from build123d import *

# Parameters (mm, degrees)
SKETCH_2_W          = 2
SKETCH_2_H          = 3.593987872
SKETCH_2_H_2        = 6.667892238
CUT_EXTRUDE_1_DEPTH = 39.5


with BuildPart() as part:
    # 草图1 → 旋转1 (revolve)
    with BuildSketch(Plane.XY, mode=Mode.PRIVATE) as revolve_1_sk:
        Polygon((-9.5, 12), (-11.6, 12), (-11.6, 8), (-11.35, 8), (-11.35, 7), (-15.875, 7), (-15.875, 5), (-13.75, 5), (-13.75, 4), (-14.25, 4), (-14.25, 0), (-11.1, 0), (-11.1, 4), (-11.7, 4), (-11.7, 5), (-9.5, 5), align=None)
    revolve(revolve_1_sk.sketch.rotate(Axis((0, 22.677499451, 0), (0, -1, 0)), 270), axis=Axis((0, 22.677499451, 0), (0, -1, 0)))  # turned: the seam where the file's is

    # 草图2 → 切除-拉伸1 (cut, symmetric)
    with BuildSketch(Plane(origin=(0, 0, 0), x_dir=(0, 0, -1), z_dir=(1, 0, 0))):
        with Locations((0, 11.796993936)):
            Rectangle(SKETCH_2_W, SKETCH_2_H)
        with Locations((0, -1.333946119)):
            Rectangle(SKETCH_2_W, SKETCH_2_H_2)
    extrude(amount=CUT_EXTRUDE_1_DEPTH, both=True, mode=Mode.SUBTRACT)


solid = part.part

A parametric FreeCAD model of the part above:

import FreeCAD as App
import Part
import Sketcher
from FreeCAD import Vector
Q = App.Units.Quantity

doc = App.newDocument("Part")
params = doc.addObject("Spreadsheet::Sheet", "Params")
for row, (alias, value) in enumerate([
    ("sketch1_height", "4 mm"),
    ("sketch1_height2", "1 mm"),
    ("sketch1_height3", "2 mm"),
    ("sketch1_width", "2.1 mm"),
    ("sketch1_width2", "0.5 mm"),
    ("revolution_angle", "360 deg"),
    ("sketch2_height", "2 mm"),
    ("pocket1_length", "79 mm"),
], start=1):
    params.set(f"A{row}", alias)
    params.set(f"B{row}", "=" + value)
    params.setAlias(f"B{row}", alias)

body = doc.addObject("PartDesign::Body", "Body")

sketch1 = doc.addObject("Sketcher::SketchObject", "Sketch")
body.addObject(sketch1)
sketch1.AttachmentSupport = (doc.XY_Plane, [""])
sketch1.MapMode = "FlatFace"
sketch1.addGeometry(Part.LineSegment(Vector(-9.5, 12, 0), Vector(-11.6, 12, 0)), False)
sketch1.addGeometry(Part.LineSegment(Vector(-11.6, 12, 0), Vector(-11.6, 8, 0)), False)
sketch1.addGeometry(Part.LineSegment(Vector(-11.6, 8, 0), Vector(-11.35, 8, 0)), False)
sketch1.addGeometry(Part.LineSegment(Vector(-11.35, 8, 0), Vector(-11.35, 7, 0)), False)
sketch1.addGeometry(Part.LineSegment(Vector(-11.35, 7, 0), Vector(-15.88, 7, 0)), False)
sketch1.addGeometry(Part.LineSegment(Vector(-15.88, 7, 0), Vector(-15.88, 5, 0)), False)
sketch1.addGeometry(Part.LineSegment(Vector(-15.88, 5, 0), Vector(-13.75, 5, 0)), False)
sketch1.addGeometry(Part.LineSegment(Vector(-13.75, 5, 0), Vector(-13.75, 4, 0)), False)
sketch1.addGeometry(Part.LineSegment(Vector(-13.75, 4, 0), Vector(-14.25, 4, 0)), False)
sketch1.addGeometry(Part.LineSegment(Vector(-14.25, 4, 0), Vector(-14.25, 0, 0)), False)
sketch1.addGeometry(Part.LineSegment(Vector(-14.25, 0, 0), Vector(-11.1, 0, 0)), False)
sketch1.addGeometry(Part.LineSegment(Vector(-11.1, 0, 0), Vector(-11.1, 4, 0)), False)
sketch1.addGeometry(Part.LineSegment(Vector(-11.1, 4, 0), Vector(-11.7, 4, 0)), False)
sketch1.addGeometry(Part.LineSegment(Vector(-11.7, 4, 0), Vector(-11.7, 5, 0)), False)
sketch1.addGeometry(Part.LineSegment(Vector(-11.7, 5, 0), Vector(-9.5, 5, 0)), False)
sketch1.addGeometry(Part.LineSegment(Vector(-9.5, 5, 0), Vector(-9.5, 12, 0)), False)
sketch1.addConstraint(Sketcher.Constraint("Coincident", 0, 2, 1, 1))
sketch1.addConstraint(Sketcher.Constraint("Coincident", 1, 2, 2, 1))
sketch1.addConstraint(Sketcher.Constraint("Coincident", 2, 2, 3, 1))
sketch1.addConstraint(Sketcher.Constraint("Coincident", 3, 2, 4, 1))
sketch1.addConstraint(Sketcher.Constraint("Coincident", 4, 2, 5, 1))
sketch1.addConstraint(Sketcher.Constraint("Coincident", 5, 2, 6, 1))
sketch1.addConstraint(Sketcher.Constraint("Coincident", 6, 2, 7, 1))
sketch1.addConstraint(Sketcher.Constraint("Coincident", 7, 2, 8, 1))
sketch1.addConstraint(Sketcher.Constraint("Coincident", 8, 2, 9, 1))
sketch1.addConstraint(Sketcher.Constraint("Coincident", 9, 2, 10, 1))
sketch1.addConstraint(Sketcher.Constraint("Coincident", 10, 2, 11, 1))
sketch1.addConstraint(Sketcher.Constraint("Coincident", 11, 2, 12, 1))
sketch1.addConstraint(Sketcher.Constraint("Coincident", 12, 2, 13, 1))
sketch1.addConstraint(Sketcher.Constraint("Coincident", 13, 2, 14, 1))
sketch1.addConstraint(Sketcher.Constraint("Coincident", 14, 2, 15, 1))
sketch1.addConstraint(Sketcher.Constraint("Coincident", 15, 2, 0, 1))
sketch1.addConstraint(Sketcher.Constraint("Horizontal", 0))
sketch1.addConstraint(Sketcher.Constraint("Vertical", 1))
sketch1.addConstraint(Sketcher.Constraint("Horizontal", 2))
sketch1.addConstraint(Sketcher.Constraint("Vertical", 3))
sketch1.addConstraint(Sketcher.Constraint("Horizontal", 4))
sketch1.addConstraint(Sketcher.Constraint("Vertical", 5))
sketch1.addConstraint(Sketcher.Constraint("Horizontal", 6))
sketch1.addConstraint(Sketcher.Constraint("Vertical", 7))
sketch1.addConstraint(Sketcher.Constraint("Horizontal", 8))
sketch1.addConstraint(Sketcher.Constraint("Vertical", 9))
sketch1.addConstraint(Sketcher.Constraint("Horizontal", 10))
sketch1.addConstraint(Sketcher.Constraint("Vertical", 11))
sketch1.addConstraint(Sketcher.Constraint("Horizontal", 12))
sketch1.addConstraint(Sketcher.Constraint("Vertical", 13))
sketch1.addConstraint(Sketcher.Constraint("Horizontal", 14))
sketch1.addConstraint(Sketcher.Constraint("Vertical", 15))
sketch1.addConstraint(Sketcher.Constraint("PointOnObject", 9, 2, -1))
sketch1.addConstraint(Sketcher.Constraint("Horizontal", 8, 2, 11, 2))
sketch1.addConstraint(Sketcher.Constraint("Horizontal", 6, 2, 13, 2))
sketch1.addConstraint(Sketcher.Constraint("Equal", 3, 7))
sketch1.addConstraint(Sketcher.Constraint("Equal", 1, 9))
sketch1.addConstraint(Sketcher.Constraint("DistanceY", 1, 2, 1, 1, Q("4 mm")))
sketch1.addConstraint(Sketcher.Constraint("DistanceY", 3, 2, 3, 1, Q("1 mm")))
sketch1.addConstraint(Sketcher.Constraint("DistanceY", 5, 2, 5, 1, Q("2 mm")))
sketch1.addConstraint(Sketcher.Constraint("DistanceX", 0, 2, 0, 1, Q("2.1 mm")))
sketch1.addConstraint(Sketcher.Constraint("DistanceX", 8, 2, 8, 1, Q("0.5 mm")))
sketch1.addConstraint(Sketcher.Constraint("DistanceX", 12, 2, 12, 1, Q("0.6 mm")))
sketch1.addConstraint(Sketcher.Constraint("DistanceX", 14, 1, 14, 2, Q("2.2 mm")))
sketch1.addConstraint(Sketcher.Constraint("DistanceX", 2, 1, 2, 2, Q("0.25 mm")))
sketch1.addConstraint(Sketcher.Constraint("DistanceX", 10, 1, 10, 2, Q("3.15 mm")))
sketch1.addConstraint(Sketcher.Constraint("DistanceX", 0, 2, -1, 1, Q("11.6 mm")))
sketch1.addConstraint(Sketcher.Constraint("DistanceX", 4, 2, 4, 1, Q("4.525 mm")))
sketch1.setExpression("Constraints[37]", "Params.sketch1_height")
sketch1.setExpression("Constraints[38]", "Params.sketch1_height2")
sketch1.setExpression("Constraints[39]", "Params.sketch1_height3")
sketch1.setExpression("Constraints[40]", "Params.sketch1_width")
sketch1.setExpression("Constraints[41]", "Params.sketch1_width2")
revolution = doc.addObject("PartDesign::Revolution", "Revolution")
body.addObject(revolution)
revolution.Profile = sketch1
revolution.ReferenceAxis = (sketch1, ["V_Axis"])
revolution.setExpression("Angle", "Params.revolution_angle")

sketch2 = doc.addObject("Sketcher::SketchObject", "Sketch001")
body.addObject(sketch2)
sketch2.AttachmentSupport = (doc.YZ_Plane, [""])
sketch2.MapMode = "FlatFace"
sketch2.addGeometry(Part.LineSegment(Vector(13.6, 1, 0), Vector(10, 1, 0)), False)
sketch2.addGeometry(Part.LineSegment(Vector(10, 1, 0), Vector(10, -1, 0)), False)
sketch2.addGeometry(Part.LineSegment(Vector(10, -1, 0), Vector(13.6, -1, 0)), False)
sketch2.addGeometry(Part.LineSegment(Vector(13.6, -1, 0), Vector(13.6, 1, 0)), False)
sketch2.addGeometry(Part.LineSegment(Vector(2, 1, 0), Vector(-4.7, 1, 0)), False)
sketch2.addGeometry(Part.LineSegment(Vector(-4.7, 1, 0), Vector(-4.7, -1, 0)), False)
sketch2.addGeometry(Part.LineSegment(Vector(-4.7, -1, 0), Vector(2, -1, 0)), False)
sketch2.addGeometry(Part.LineSegment(Vector(2, -1, 0), Vector(2, 1, 0)), False)
sketch2.addConstraint(Sketcher.Constraint("Coincident", 0, 2, 1, 1))
sketch2.addConstraint(Sketcher.Constraint("Coincident", 1, 2, 2, 1))
sketch2.addConstraint(Sketcher.Constraint("Coincident", 2, 2, 3, 1))
sketch2.addConstraint(Sketcher.Constraint("Coincident", 3, 2, 0, 1))
sketch2.addConstraint(Sketcher.Constraint("Coincident", 4, 2, 5, 1))
sketch2.addConstraint(Sketcher.Constraint("Coincident", 5, 2, 6, 1))
sketch2.addConstraint(Sketcher.Constraint("Coincident", 6, 2, 7, 1))
sketch2.addConstraint(Sketcher.Constraint("Coincident", 7, 2, 4, 1))
sketch2.addConstraint(Sketcher.Constraint("Horizontal", 0))
sketch2.addConstraint(Sketcher.Constraint("Vertical", 1))
sketch2.addConstraint(Sketcher.Constraint("Horizontal", 2))
sketch2.addConstraint(Sketcher.Constraint("Vertical", 3))
sketch2.addConstraint(Sketcher.Constraint("Horizontal", 4))
sketch2.addConstraint(Sketcher.Constraint("Vertical", 5))
sketch2.addConstraint(Sketcher.Constraint("Horizontal", 6))
sketch2.addConstraint(Sketcher.Constraint("Vertical", 7))
sketch2.addConstraint(Sketcher.Constraint("Horizontal", 3, 2, 4, 2))
sketch2.addConstraint(Sketcher.Constraint("Horizontal", 2, 2, 5, 2))
sketch2.addConstraint(Sketcher.Constraint("DistanceY", 1, 2, 1, 1, Q("2 mm")))
sketch2.addConstraint(Sketcher.Constraint("DistanceX", -1, 1, 0, 2, Q("10 mm")))
sketch2.addConstraint(Sketcher.Constraint("DistanceY", -1, 1, 0, 2, Q("1 mm")))
sketch2.addConstraint(Sketcher.Constraint("DistanceX", -1, 1, 6, 2, Q("2 mm")))
sketch2.addConstraint(Sketcher.Constraint("DistanceX", 0, 2, 0, 1, Q("3.593988 mm")))
sketch2.addConstraint(Sketcher.Constraint("DistanceX", 4, 2, 4, 1, Q("6.667892 mm")))
sketch2.setExpression("Constraints[18]", "Params.sketch2_height")
pocket1 = doc.addObject("PartDesign::Pocket", "Pocket")
body.addObject(pocket1)
pocket1.Profile = sketch2
pocket1.setExpression("Length", "Params.pocket1_length")
pocket1.Midplane = True

doc.recompute()
